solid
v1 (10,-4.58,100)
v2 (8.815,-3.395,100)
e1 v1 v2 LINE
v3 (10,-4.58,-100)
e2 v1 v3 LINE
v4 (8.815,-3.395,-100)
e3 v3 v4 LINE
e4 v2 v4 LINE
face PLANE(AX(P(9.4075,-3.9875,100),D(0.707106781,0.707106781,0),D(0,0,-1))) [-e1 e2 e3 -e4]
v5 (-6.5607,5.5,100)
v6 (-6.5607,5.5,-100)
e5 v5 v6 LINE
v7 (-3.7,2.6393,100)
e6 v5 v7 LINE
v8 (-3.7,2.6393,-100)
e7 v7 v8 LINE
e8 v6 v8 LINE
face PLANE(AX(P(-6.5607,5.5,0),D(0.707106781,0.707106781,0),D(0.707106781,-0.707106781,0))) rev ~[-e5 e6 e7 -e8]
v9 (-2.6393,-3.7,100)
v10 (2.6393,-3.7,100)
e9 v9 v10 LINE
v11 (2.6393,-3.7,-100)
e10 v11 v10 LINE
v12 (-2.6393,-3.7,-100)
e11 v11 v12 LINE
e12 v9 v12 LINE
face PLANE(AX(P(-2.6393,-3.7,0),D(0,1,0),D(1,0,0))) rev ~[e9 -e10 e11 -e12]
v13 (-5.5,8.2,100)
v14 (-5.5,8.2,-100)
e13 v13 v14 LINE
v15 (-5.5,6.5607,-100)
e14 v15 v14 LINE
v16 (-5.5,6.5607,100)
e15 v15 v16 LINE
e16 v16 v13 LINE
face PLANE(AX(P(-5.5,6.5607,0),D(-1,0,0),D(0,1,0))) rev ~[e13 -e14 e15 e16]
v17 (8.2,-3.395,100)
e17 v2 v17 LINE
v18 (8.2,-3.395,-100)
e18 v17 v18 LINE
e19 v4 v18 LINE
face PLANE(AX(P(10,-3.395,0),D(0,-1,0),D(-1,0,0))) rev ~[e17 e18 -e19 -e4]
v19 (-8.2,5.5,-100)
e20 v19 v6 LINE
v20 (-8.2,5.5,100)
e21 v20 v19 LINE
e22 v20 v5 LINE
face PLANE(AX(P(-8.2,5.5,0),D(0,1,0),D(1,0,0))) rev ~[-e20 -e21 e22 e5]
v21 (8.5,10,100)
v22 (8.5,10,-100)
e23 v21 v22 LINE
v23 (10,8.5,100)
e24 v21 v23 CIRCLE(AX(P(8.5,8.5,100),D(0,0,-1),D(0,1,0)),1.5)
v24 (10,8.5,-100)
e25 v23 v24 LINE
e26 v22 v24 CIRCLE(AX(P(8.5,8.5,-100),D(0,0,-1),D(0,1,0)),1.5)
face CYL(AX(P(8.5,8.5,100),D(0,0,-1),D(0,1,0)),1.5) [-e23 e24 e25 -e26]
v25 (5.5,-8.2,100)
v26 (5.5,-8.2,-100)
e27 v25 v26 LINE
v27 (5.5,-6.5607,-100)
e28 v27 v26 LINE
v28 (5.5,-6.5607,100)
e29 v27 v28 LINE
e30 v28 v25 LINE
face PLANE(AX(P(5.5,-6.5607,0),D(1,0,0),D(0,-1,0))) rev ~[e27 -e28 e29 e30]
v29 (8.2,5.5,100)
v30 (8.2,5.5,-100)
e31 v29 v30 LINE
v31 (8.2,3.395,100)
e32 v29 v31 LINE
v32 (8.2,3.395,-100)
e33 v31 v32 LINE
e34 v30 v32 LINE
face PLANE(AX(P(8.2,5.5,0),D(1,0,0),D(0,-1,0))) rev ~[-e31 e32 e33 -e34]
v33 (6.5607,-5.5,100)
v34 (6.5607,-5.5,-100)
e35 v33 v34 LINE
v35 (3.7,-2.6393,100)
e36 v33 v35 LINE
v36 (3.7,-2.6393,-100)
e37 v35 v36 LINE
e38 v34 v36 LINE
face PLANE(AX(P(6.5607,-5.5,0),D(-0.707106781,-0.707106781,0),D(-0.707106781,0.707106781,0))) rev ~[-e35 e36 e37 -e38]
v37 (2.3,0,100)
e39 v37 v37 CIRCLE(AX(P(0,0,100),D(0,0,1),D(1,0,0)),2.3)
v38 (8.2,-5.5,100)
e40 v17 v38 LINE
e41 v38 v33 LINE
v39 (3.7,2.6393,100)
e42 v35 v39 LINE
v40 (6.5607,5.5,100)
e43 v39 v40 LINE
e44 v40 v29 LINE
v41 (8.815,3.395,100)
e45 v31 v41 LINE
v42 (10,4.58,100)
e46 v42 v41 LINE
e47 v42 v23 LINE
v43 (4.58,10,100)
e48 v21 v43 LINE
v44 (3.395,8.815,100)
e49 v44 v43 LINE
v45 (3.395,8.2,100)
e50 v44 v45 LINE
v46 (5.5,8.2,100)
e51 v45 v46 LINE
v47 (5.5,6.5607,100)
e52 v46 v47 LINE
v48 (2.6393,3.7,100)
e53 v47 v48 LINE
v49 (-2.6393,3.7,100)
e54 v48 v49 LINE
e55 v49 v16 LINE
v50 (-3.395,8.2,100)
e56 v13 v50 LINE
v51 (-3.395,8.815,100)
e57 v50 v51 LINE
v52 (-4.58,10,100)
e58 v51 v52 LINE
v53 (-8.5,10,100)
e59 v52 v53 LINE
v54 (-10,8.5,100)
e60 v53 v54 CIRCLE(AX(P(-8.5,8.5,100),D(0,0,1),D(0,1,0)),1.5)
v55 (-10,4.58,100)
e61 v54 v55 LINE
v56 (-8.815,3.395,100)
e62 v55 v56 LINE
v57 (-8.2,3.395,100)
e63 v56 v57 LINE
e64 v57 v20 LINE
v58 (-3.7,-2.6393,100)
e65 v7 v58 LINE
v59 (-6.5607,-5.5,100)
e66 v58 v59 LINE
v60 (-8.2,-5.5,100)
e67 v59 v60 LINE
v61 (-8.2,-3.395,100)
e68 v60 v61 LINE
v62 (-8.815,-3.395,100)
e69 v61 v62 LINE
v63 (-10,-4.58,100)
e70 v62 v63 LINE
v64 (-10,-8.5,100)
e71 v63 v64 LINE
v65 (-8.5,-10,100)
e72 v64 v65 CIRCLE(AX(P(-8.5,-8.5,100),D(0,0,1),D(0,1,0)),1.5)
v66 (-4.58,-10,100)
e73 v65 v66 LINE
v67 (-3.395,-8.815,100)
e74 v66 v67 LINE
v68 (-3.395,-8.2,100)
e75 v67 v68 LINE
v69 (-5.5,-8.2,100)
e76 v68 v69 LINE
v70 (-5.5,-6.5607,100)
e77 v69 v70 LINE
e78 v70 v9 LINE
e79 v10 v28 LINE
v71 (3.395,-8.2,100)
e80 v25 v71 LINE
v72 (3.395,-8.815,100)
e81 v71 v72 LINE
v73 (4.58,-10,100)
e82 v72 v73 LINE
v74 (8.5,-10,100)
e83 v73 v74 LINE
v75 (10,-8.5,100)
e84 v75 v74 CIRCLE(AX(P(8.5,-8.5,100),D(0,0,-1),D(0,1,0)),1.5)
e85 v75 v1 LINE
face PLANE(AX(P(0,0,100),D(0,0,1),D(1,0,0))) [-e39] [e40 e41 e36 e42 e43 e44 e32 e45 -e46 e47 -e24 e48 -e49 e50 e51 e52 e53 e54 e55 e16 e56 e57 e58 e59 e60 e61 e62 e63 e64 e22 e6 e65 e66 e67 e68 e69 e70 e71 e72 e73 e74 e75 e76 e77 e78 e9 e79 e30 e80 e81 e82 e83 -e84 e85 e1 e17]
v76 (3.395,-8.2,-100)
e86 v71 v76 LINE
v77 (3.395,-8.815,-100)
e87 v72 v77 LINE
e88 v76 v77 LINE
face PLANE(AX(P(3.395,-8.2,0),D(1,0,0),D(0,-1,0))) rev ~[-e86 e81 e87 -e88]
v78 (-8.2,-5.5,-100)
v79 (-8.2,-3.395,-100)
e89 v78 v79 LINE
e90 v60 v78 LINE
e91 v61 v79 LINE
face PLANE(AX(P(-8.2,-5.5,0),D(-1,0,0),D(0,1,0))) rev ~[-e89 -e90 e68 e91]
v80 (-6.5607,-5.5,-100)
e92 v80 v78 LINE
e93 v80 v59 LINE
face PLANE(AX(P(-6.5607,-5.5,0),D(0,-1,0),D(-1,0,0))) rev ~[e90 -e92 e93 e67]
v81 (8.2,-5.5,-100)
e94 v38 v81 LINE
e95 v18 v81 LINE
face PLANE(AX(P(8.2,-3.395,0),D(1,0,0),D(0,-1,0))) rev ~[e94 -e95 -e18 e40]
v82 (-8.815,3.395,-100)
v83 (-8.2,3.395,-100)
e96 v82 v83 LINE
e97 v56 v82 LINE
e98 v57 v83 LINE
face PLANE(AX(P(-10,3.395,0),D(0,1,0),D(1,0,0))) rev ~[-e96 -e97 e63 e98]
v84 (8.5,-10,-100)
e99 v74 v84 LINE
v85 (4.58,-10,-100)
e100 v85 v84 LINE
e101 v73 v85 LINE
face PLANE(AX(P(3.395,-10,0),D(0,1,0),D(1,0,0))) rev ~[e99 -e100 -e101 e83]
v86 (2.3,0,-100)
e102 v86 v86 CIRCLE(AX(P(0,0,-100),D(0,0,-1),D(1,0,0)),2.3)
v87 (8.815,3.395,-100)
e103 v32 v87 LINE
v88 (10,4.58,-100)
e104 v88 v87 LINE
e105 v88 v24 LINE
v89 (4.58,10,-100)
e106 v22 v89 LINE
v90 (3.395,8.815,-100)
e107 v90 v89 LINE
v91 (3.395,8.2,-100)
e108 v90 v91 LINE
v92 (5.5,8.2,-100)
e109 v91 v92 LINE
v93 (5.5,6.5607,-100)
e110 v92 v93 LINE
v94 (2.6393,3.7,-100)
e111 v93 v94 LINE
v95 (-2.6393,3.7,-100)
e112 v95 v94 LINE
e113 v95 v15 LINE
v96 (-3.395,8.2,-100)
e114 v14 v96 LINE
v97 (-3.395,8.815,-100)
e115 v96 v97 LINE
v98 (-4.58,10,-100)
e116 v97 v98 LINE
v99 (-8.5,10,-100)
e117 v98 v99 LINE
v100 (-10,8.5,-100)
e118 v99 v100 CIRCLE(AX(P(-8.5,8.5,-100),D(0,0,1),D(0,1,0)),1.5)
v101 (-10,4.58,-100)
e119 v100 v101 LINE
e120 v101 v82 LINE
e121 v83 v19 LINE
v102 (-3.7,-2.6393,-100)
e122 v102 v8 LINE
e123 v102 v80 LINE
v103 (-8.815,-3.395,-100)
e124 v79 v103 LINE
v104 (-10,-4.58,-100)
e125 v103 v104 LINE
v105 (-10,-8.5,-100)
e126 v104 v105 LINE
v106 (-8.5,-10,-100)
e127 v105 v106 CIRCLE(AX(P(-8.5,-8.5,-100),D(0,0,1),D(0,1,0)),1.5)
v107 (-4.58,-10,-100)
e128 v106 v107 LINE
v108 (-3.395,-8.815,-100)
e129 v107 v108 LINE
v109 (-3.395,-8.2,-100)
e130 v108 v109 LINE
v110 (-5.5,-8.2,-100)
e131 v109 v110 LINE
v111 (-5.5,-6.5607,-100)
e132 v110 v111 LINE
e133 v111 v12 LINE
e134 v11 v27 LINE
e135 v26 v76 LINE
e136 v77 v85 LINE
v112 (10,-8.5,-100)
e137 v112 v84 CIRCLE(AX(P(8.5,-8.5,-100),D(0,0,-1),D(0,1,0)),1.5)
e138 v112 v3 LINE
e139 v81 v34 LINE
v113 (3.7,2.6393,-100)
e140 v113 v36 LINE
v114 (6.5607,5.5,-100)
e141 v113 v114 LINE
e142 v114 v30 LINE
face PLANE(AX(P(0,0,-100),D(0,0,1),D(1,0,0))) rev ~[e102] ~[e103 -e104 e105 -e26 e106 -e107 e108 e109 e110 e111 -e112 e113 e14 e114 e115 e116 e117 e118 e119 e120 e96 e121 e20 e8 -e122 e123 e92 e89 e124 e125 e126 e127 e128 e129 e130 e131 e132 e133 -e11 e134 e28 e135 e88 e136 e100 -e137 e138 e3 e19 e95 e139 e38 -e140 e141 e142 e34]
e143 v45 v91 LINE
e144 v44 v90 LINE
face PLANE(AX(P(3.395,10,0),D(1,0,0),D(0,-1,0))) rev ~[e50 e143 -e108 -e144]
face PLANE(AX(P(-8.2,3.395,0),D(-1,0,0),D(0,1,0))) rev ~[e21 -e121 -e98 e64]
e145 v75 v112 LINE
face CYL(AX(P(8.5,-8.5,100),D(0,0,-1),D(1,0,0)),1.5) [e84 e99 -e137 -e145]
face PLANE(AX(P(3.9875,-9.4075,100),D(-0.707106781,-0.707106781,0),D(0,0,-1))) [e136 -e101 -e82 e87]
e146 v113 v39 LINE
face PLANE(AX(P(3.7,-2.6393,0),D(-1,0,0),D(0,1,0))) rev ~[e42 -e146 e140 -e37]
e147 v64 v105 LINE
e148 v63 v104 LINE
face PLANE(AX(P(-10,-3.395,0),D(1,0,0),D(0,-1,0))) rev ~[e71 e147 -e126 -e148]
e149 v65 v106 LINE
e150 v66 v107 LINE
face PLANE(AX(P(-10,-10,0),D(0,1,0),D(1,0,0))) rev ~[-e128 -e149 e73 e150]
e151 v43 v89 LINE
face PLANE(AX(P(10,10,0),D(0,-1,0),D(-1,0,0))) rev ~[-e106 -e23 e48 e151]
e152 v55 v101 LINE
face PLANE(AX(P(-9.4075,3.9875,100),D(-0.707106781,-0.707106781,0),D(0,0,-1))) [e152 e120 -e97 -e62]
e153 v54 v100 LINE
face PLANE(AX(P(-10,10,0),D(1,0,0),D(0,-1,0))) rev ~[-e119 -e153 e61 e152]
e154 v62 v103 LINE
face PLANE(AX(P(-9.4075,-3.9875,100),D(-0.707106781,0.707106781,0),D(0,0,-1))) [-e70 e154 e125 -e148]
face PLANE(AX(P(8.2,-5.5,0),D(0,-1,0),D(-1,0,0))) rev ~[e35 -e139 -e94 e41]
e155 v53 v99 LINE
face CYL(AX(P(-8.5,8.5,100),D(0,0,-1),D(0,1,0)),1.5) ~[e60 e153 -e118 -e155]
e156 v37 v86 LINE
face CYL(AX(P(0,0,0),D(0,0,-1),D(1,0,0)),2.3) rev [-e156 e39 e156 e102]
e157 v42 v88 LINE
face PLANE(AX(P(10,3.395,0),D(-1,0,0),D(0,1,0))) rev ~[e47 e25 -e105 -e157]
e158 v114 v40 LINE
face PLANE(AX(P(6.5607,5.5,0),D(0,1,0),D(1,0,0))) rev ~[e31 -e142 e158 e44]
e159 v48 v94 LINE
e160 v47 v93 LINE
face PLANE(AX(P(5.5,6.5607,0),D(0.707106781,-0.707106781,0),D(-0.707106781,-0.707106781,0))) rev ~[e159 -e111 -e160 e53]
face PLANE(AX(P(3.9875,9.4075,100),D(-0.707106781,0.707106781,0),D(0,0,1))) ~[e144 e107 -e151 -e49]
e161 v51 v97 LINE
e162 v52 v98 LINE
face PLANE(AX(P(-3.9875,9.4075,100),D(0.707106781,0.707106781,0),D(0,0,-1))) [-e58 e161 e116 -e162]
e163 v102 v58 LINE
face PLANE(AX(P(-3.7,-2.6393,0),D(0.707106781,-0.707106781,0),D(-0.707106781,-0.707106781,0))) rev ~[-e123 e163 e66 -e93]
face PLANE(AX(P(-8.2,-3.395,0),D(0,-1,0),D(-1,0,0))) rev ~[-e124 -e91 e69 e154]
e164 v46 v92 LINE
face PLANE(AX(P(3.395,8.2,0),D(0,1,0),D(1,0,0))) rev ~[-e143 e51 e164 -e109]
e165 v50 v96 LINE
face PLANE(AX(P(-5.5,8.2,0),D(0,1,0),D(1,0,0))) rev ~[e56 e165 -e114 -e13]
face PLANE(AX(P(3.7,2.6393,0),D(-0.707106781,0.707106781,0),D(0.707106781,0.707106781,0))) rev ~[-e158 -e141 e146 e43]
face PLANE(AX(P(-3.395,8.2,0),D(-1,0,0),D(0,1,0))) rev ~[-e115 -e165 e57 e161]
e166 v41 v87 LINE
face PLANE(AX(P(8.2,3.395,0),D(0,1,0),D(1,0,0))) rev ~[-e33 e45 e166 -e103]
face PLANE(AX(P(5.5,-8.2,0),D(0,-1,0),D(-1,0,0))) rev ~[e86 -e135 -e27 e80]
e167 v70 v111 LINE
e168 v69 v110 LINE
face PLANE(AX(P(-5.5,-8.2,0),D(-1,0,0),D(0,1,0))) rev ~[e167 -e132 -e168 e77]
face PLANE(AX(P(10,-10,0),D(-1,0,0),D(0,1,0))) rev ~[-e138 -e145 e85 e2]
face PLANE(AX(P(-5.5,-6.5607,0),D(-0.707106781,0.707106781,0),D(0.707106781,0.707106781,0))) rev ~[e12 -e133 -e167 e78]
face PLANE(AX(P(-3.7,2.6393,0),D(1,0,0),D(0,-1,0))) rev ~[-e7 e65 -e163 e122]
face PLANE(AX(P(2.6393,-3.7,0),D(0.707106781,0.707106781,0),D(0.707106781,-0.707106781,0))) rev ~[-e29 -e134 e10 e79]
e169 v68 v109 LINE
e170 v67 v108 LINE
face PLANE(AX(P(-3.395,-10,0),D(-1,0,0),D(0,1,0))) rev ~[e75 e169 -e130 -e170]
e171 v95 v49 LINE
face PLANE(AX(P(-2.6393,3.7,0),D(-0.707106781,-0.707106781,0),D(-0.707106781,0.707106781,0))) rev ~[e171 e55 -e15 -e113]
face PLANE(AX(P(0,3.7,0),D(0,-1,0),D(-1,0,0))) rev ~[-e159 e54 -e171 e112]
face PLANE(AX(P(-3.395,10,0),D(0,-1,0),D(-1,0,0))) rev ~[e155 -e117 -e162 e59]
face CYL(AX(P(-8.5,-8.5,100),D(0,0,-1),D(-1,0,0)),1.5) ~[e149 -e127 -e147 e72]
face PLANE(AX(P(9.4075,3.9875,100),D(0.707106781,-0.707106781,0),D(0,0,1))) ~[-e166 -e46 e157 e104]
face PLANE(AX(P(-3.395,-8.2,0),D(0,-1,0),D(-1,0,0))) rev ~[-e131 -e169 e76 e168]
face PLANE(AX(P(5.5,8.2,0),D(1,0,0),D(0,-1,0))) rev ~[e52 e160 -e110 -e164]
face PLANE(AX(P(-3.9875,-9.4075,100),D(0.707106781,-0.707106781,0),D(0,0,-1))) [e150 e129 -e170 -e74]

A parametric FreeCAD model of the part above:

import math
import FreeCAD as App
import Part
import Sketcher
Q = App.Units.Quantity


def edges_at(feature, points):
    """Names of the edges that pass closest to the given points."""
    edges = feature.Shape.Edges
    near = lambda p: min(range(len(edges)), key=lambda i: edges[i].distToShape(Part.Vertex(*p))[0])
    return sorted({f"Edge{near(p) + 1}" for p in points})

doc = App.newDocument("Part")
body = doc.addObject("PartDesign::Body", "Body")

# Sketch on XY plane
sketch1 = body.newObject("Sketcher::SketchObject", "Sketch")
sketch1.AttachmentSupport = (doc.getObject("XY_Plane"), [""])
sketch1.MapMode = "FlatFace"
sketch1.addGeometry([
    Part.LineSegment(App.Vector(0, 2.3, 0), App.Vector(0, 3.7, 0)),  # 0
    Part.LineSegment(App.Vector(0, 3.7, 0), App.Vector(-2.6393, 3.7, 0)),  # 1
    Part.LineSegment(App.Vector(-2.6393, 3.7, 0), App.Vector(-5.5, 6.5607, 0)),  # 2
    Part.LineSegment(App.Vector(-5.5, 6.5607, 0), App.Vector(-5.5, 8.2, 0)),  # 3
    Part.LineSegment(App.Vector(-5.5, 8.2, 0), App.Vector(-3.395, 8.2, 0)),  # 4
    Part.LineSegment(App.Vector(-3.395, 8.2, 0), App.Vector(-3.395, 10, 0)),  # 5
    Part.LineSegment(App.Vector(-3.395, 10, 0), App.Vector(-10, 10, 0)),  # 6
    Part.LineSegment(App.Vector(-10, 10, 0), App.Vector(-10, 3.395, 0)),  # 7
    Part.LineSegment(App.Vector(-10, 3.395, 0), App.Vector(-8.2, 3.395, 0)),  # 8
    Part.LineSegment(App.Vector(-8.2, 3.395, 0), App.Vector(-8.2, 5.5, 0)),  # 9
    Part.LineSegment(App.Vector(-8.2, 5.5, 0), App.Vector(-6.5607, 5.5, 0)),  # 10
    Part.LineSegment(App.Vector(-6.5607, 5.5, 0), App.Vector(-3.7, 2.6393, 0)),  # 11
    Part.LineSegment(App.Vector(-3.7, 2.6393, 0), App.Vector(-3.7, 0, 0)),  # 12
    Part.LineSegment(App.Vector(-3.7, 0, 0), App.Vector(-2.3, 0, 0)),  # 13
    Part.ArcOfCircle(Part.Circle(App.Vector(0, 0, 0), App.Vector(0, 0, 1), 2.3), math.radians(90), math.radians(180)),  # 14
], False)
sketch1.addConstraint([
    Sketcher.Constraint("Coincident", 0, 2, 1, 1),
    Sketcher.Constraint("Coincident", 1, 2, 2, 1),
    Sketcher.Constraint("Coincident", 2, 2, 3, 1),
    Sketcher.Constraint("Coincident", 3, 2, 4, 1),
    Sketcher.Constraint("Coincident", 4, 2, 5, 1),
    Sketcher.Constraint("Coincident", 5, 2, 6, 1),
    Sketcher.Constraint("Coincident", 6, 2, 7, 1),
    Sketcher.Constraint("Coincident", 7, 2, 8, 1),
    Sketcher.Constraint("Coincident", 8, 2, 9, 1),
    Sketcher.Constraint("Coincident", 9, 2, 10, 1),
    Sketcher.Constraint("Coincident", 10, 2, 11, 1),
    Sketcher.Constraint("Coincident", 11, 2, 12, 1),
    Sketcher.Constraint("Coincident", 12, 2, 13, 1),
    Sketcher.Constraint("Coincident", 13, 2, 14, 2),
    Sketcher.Constraint("Coincident", 14, 1, 0, 1),
    Sketcher.Constraint("Vertical", 0),
    Sketcher.Constraint("Horizontal", 1),
    Sketcher.Constraint("Vertical", 3),
    Sketcher.Constraint("Horizontal", 4),
    Sketcher.Constraint("Vertical", 5),
    Sketcher.Constraint("Horizontal", 6),
    Sketcher.Constraint("Vertical", 7),
    Sketcher.Constraint("Horizontal", 8),
    Sketcher.Constraint("Vertical", 9),
    Sketcher.Constraint("Horizontal", 10),
    Sketcher.Constraint("Vertical", 12),
    Sketcher.Constraint("Horizontal", 13),
    Sketcher.Constraint("Coincident", 14, 3, -1, 1),
    Sketcher.Constraint("PointOnObject", 0, 2, -2),
    Sketcher.Constraint("PointOnObject", 12, 2, -1),
    Sketcher.Constraint("Parallel", 2, 11),
    Sketcher.Constraint("Equal", 13, 0),
    Sketcher.Constraint("Equal", 10, 3),
    Sketcher.Constraint("Equal", 8, 5),
    Sketcher.Constraint("Equal", 6, 7),
    Sketcher.Constraint("Equal", 4, 9),
    Sketcher.Constraint("Equal", 1, 12),
    Sketcher.Constraint("Radius", 14, Q("2.3 mm")),
    Sketcher.Constraint("Angle", 2, Q("135 deg")),
    Sketcher.Constraint("DistanceX", 8, 1, 8, 2, Q("1.8 mm")),
    Sketcher.Constraint("DistanceY", 1, 2, 5, 2, Q("6.3 mm")),
    Sketcher.Constraint("DistanceX", 2, 2, 11, 2, Q("1.8 mm")),
    Sketcher.Constraint("DistanceX", 13, 1, 13, 2, Q("1.4 mm")),
    Sketcher.Constraint("DistanceX", 4, 1, 4, 2, Q("2.105 mm")),
    Sketcher.Constraint("DistanceX", 1, 2, 1, 1, Q("2.6393 mm")),
])
pad1 = body.newObject("PartDesign::Pad", "Pad")
pad1.Profile = sketch1
pad1.Length = 200
pad1.Midplane = True
doc.recompute()

polarpattern = body.newObject("PartDesign::PolarPattern", "PolarPattern")
polarpattern.Originals = [pad1]
polarpattern.Axis = (doc.getObject("Z_Axis"), [""])
polarpattern.Angle = 360
polarpattern.Occurrences = 4
body.Tip = polarpattern
doc.recompute()

chamfer = body.newObject("PartDesign::Chamfer", "Chamfer")
chamfer.Base = (polarpattern, edges_at(polarpattern, [
    (-3.395, 10, 0),
    (3.395, 10, 0),
    (10, 3.395, 0),
    (10, -3.395, 0),
    (3.395, -10, 0),
    (-3.395, -10, 0),
    (-10, -3.395, 0),
    (-10, 3.395, 0),
]))
chamfer.Size = 1.185
doc.recompute()

fillet = body.newObject("PartDesign::Fillet", "Fillet")
fillet.Base = (chamfer, edges_at(chamfer, [
    (-10, 10, 0),
    (10, 10, 0),
    (-10, -10, 0),
    (10, -10, 0),
]))
fillet.Radius = 1.5

doc.recompute()
